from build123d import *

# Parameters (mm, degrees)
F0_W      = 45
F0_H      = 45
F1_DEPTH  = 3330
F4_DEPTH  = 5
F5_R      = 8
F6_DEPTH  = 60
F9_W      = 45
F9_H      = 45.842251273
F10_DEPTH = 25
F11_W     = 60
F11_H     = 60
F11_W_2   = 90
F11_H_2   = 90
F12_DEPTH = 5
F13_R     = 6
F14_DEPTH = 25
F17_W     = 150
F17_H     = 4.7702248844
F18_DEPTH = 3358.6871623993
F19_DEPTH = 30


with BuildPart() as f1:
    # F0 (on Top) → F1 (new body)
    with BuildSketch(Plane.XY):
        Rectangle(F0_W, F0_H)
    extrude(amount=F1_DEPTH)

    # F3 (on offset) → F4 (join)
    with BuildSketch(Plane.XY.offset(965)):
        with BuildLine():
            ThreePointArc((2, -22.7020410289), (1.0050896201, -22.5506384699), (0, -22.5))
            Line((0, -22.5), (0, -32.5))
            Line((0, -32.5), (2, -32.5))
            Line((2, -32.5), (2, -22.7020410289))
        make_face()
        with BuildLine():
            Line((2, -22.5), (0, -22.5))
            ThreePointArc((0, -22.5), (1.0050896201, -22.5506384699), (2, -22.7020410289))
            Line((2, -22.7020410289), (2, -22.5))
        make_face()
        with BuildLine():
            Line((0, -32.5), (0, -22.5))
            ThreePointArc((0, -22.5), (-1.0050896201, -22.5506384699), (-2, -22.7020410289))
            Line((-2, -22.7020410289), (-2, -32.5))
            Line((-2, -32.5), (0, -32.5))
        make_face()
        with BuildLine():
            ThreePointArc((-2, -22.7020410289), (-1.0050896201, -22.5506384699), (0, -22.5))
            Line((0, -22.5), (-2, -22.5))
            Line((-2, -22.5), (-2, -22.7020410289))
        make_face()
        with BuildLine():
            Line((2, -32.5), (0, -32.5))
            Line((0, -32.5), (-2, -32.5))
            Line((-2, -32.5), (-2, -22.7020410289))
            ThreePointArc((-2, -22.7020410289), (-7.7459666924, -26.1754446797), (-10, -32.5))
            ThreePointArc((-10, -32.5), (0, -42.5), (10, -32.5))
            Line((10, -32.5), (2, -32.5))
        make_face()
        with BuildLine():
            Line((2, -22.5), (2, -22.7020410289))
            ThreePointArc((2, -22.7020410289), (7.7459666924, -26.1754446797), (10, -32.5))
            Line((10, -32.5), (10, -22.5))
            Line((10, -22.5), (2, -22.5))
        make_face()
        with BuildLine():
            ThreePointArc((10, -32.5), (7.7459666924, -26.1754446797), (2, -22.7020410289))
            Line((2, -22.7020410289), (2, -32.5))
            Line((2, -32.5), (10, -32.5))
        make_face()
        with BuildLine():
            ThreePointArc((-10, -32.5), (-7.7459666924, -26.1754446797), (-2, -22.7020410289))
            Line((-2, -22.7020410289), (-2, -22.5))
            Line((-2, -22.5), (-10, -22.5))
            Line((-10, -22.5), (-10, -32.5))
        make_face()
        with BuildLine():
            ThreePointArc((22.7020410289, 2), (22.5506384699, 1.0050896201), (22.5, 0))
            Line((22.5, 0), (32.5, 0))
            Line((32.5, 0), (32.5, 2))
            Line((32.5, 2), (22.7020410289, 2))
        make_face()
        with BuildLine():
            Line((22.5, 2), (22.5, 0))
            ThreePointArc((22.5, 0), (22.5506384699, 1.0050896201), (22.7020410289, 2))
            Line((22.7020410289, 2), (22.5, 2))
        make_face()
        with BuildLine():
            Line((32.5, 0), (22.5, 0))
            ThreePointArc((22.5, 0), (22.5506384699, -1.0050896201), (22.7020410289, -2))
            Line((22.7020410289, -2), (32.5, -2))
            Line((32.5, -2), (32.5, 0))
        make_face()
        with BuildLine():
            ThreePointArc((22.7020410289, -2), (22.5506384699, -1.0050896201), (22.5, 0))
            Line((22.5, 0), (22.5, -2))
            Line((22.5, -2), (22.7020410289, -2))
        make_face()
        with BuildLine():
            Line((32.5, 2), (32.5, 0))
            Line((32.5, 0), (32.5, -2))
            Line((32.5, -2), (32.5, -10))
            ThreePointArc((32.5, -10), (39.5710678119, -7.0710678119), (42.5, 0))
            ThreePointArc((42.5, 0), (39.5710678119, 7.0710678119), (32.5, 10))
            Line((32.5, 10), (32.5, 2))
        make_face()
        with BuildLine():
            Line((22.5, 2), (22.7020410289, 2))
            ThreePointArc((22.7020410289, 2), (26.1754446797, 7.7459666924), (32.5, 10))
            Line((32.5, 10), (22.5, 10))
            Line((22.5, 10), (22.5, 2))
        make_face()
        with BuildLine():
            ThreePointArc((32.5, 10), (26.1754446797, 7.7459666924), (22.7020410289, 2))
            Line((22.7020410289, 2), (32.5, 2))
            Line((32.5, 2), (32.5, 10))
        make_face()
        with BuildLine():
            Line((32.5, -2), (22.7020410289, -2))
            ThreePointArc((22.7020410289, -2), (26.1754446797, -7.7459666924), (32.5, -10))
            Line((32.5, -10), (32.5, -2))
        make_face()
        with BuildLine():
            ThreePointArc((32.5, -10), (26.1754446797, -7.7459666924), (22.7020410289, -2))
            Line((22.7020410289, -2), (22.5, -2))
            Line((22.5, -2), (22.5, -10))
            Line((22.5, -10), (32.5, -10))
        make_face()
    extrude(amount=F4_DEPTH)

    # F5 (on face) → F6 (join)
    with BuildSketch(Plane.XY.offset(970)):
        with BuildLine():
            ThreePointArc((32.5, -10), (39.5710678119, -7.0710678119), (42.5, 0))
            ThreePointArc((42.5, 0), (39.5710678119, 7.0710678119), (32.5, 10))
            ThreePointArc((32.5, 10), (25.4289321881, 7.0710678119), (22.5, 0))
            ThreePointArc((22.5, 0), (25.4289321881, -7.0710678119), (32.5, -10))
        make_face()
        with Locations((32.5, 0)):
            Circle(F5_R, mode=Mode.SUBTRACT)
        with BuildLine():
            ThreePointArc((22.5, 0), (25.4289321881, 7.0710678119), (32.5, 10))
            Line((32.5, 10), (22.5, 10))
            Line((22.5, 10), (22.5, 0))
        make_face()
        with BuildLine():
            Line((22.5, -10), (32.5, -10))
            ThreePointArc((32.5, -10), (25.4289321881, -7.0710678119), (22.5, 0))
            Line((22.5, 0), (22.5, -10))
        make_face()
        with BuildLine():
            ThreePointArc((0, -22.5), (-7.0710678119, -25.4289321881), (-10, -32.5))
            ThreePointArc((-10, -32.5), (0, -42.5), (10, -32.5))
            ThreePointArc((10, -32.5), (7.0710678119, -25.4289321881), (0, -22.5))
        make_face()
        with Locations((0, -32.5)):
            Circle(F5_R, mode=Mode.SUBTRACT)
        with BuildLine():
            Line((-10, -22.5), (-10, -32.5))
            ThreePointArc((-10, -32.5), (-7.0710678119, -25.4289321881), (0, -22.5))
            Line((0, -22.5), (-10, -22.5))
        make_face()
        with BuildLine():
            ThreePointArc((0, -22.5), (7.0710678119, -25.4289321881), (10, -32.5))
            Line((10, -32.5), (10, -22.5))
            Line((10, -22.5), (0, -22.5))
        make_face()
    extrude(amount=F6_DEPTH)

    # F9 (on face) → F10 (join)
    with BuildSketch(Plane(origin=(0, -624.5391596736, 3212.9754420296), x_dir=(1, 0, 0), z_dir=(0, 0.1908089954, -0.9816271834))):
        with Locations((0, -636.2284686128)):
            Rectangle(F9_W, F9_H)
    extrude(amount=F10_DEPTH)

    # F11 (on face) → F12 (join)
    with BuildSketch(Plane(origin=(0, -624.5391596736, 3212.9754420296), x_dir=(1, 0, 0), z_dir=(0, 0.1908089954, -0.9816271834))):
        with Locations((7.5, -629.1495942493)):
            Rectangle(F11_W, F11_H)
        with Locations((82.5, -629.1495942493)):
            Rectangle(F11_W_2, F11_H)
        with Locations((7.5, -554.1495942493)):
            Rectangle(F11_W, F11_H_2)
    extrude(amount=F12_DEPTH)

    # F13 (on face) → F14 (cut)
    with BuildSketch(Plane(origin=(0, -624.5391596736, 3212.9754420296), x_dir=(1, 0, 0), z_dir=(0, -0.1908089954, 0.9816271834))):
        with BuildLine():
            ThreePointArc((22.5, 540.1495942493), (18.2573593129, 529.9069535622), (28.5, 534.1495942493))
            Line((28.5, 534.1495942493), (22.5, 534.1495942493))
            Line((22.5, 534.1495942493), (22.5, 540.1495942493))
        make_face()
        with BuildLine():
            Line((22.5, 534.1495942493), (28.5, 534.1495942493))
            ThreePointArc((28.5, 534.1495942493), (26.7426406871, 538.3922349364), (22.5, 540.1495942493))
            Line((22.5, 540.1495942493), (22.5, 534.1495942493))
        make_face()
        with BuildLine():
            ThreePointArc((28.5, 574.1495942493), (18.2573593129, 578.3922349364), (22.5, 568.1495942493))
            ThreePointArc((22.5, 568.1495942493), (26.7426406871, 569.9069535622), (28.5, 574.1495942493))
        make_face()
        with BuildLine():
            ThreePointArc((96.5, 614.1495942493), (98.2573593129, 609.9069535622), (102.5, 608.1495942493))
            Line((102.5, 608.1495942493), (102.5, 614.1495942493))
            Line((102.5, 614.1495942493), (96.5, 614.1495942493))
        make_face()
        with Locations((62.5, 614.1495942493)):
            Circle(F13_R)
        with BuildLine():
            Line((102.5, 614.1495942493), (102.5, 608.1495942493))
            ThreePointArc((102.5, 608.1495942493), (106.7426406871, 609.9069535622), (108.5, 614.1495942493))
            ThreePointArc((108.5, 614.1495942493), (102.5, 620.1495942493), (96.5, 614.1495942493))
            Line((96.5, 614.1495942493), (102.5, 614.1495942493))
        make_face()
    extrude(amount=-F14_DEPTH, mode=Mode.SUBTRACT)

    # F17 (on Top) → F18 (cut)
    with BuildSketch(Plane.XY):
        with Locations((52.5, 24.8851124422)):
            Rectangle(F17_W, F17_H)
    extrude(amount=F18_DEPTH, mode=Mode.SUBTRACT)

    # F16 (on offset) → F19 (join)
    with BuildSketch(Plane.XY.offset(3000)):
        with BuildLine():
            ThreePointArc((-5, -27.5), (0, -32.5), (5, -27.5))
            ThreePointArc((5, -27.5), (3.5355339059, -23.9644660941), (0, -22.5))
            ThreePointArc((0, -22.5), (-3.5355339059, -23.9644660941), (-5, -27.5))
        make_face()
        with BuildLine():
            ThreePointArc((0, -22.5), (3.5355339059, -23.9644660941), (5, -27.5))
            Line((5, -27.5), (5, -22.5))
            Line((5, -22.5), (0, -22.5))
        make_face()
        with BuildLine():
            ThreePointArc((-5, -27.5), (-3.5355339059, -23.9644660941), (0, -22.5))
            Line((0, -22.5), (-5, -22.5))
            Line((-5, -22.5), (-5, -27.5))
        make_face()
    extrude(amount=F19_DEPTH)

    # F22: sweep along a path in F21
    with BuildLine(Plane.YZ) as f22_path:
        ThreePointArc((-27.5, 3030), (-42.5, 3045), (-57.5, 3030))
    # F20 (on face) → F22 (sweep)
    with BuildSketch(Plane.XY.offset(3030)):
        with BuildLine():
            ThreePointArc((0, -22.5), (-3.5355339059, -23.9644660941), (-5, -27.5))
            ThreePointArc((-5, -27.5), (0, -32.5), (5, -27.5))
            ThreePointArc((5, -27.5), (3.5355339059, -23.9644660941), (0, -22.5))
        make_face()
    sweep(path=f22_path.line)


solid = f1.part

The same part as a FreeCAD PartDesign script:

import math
import FreeCAD as App
import Part
import Sketcher
from FreeCAD import Vector
Q = App.Units.Quantity

doc = App.newDocument("Part")
body = doc.addObject("PartDesign::Body", "Body")

sketch1 = doc.addObject("Sketcher::SketchObject", "Sketch")
body.addObject(sketch1)
sketch1.AttachmentSupport = (doc.XY_Plane, [""])
sketch1.MapMode = "FlatFace"
sketch1.addGeometry([
    Part.LineSegment(Vector(-22.5, 22.5, 0), Vector(-22.5, -22.5, 0)),
    Part.LineSegment(Vector(-22.5, -22.5, 0), Vector(22.5, -22.5, 0)),
    Part.LineSegment(Vector(22.5, -22.5, 0), Vector(22.5, 22.5, 0)),
    Part.LineSegment(Vector(22.5, 22.5, 0), Vector(-22.5, 22.5, 0)),
], False)
sketch1.addConstraint([
    Sketcher.Constraint("Coincident", 0, 2, 1, 1),
    Sketcher.Constraint("Coincident", 1, 2, 2, 1),
    Sketcher.Constraint("Coincident", 2, 2, 3, 1),
    Sketcher.Constraint("Coincident", 3, 2, 0, 1),
    Sketcher.Constraint("Vertical", 0),
    Sketcher.Constraint("Horizontal", 1),
    Sketcher.Constraint("Vertical", 2),
    Sketcher.Constraint("Horizontal", 3),
    Sketcher.Constraint("Symmetric", 0, 2, 2, 2, -1, 1),
    Sketcher.Constraint("Equal", 3, 0),
    Sketcher.Constraint("DistanceX", 1, 1, 1, 2, Q("45 mm")),
])
pad1 = doc.addObject("PartDesign::Pad", "Pad")
body.addObject(pad1)
pad1.Profile = sketch1
pad1.Length = 3330

sketch2 = doc.addObject("Sketcher::SketchObject", "Sketch001")
body.addObject(sketch2)
sketch2.AttachmentSupport = (doc.XY_Plane, [""])
sketch2.MapMode = "FlatFace"
sketch2.AttachmentOffset = App.Placement(Vector(0, 0, 965), App.Rotation())
sketch2.addGeometry([
    Part.ArcOfCircle(Part.Circle(Vector(0, -32.5, 0), Vector(0, 0, 1), 10), math.radians(180), math.radians(360)),
    Part.LineSegment(Vector(10, -32.5, 0), Vector(10, -22.5, 0)),
    Part.LineSegment(Vector(10, -22.5, 0), Vector(-10, -22.5, 0)),
    Part.LineSegment(Vector(-10, -22.5, 0), Vector(-10, -32.5, 0)),
    Part.ArcOfCircle(Part.Circle(Vector(32.5, 0, 0), Vector(0, 0, 1), 10), math.radians(0), math.radians(90)),
    Part.LineSegment(Vector(32.5, 10, 0), Vector(22.5, 10, 0)),
    Part.LineSegment(Vector(22.5, 10, 0), Vector(22.5, -10, 0)),
    Part.LineSegment(Vector(22.5, -10, 0), Vector(32.5, -10, 0)),
    Part.ArcOfCircle(Part.Circle(Vector(32.5, 0, 0), Vector(0, 0, 1), 10), math.radians(-90), math.radians(0)),
], False)
sketch2.addConstraint([
    Sketcher.Constraint("Tangent", 0, 2, 1, 1),
    Sketcher.Constraint("Coincident", 1, 2, 2, 1),
    Sketcher.Constraint("Coincident", 2, 2, 3, 1),
    Sketcher.Constraint("Tangent", 3, 2, 0, 1),
    Sketcher.Constraint("Tangent", 4, 2, 5, 1),
    Sketcher.Constraint("Coincident", 5, 2, 6, 1),
    Sketcher.Constraint("Coincident", 6, 2, 7, 1),
    Sketcher.Constraint("Tangent", 7, 2, 8, 1),
    Sketcher.Constraint("Tangent", 8, 2, 4, 1),
    Sketcher.Constraint("Vertical", 1),
    Sketcher.Constraint("Horizontal", 2),
    Sketcher.Constraint("Vertical", 3),
    Sketcher.Constraint("Horizontal", 5),
    Sketcher.Constraint("Vertical", 6),
    Sketcher.Constraint("Horizontal", 7),
    Sketcher.Constraint("Equal", 0, 4),
    Sketcher.Constraint("Equal", 4, 8),
    Sketcher.Constraint("PointOnObject", 0, 3, -2),
    Sketcher.Constraint("PointOnObject", 4, 3, -1),
    Sketcher.Constraint("PointOnObject", 8, 2, -1),
    Sketcher.Constraint("Equal", 7, 1),
    Sketcher.Constraint("Radius", 0, Q("10 mm")),
    Sketcher.Constraint("DistanceX", 5, 2, 5, 1, Q("10 mm")),
    Sketcher.Constraint("DistanceY", 0, 3, -1, 1, Q("32.5 mm")),
    Sketcher.Constraint("DistanceX", -1, 1, 4, 3, Q("32.5 mm")),
])
pad2 = doc.addObject("PartDesign::Pad", "Pad001")
body.addObject(pad2)
pad2.Profile = sketch2
pad2.Length = 5

sketch3 = doc.addObject("Sketcher::SketchObject", "Sketch002")
body.addObject(sketch3)
sketch3.AttachmentSupport = (doc.XY_Plane, [""])
sketch3.MapMode = "FlatFace"
sketch3.AttachmentOffset = App.Placement(Vector(0, 0, 970), App.Rotation())
sketch3.addGeometry([
    Part.ArcOfCircle(Part.Circle(Vector(32.5, 0, 0), Vector(0, 0, 1), 10), math.radians(-90), math.radians(0)),
    Part.ArcOfCircle(Part.Circle(Vector(32.5, 0, 0), Vector(0, 0, 1), 10), math.radians(0), math.radians(90)),
    Part.LineSegment(Vector(32.5, 10, 0), Vector(22.5, 10, 0)),
    Part.LineSegment(Vector(22.5, 10, 0), Vector(22.5, -10, 0)),
    Part.LineSegment(Vector(22.5, -10, 0), Vector(32.5, -10, 0)),
    Part.Circle(Vector(32.5, 0, 0), Vector(0, 0, 1), 8),
    Part.LineSegment(Vector(-10, -22.5, 0), Vector(-10, -32.5, 0)),
    Part.ArcOfCircle(Part.Circle(Vector(0, -32.5, 0), Vector(0, 0, 1), 10), math.radians(180), math.radians(360)),
    Part.LineSegment(Vector(10, -32.5, 0), Vector(10, -22.5, 0)),
    Part.LineSegment(Vector(10, -22.5, 0), Vector(-10, -22.5, 0)),
    Part.Circle(Vector(0, -32.5, 0), Vector(0, 0, 1), 8),
], False)
sketch3.addConstraint([
    Sketcher.Constraint("Tangent", 0, 2, 1, 1),
    Sketcher.Constraint("Tangent", 1, 2, 2, 1),
    Sketcher.Constraint("Coincident", 2, 2, 3, 1),
    Sketcher.Constraint("Coincident", 3, 2, 4, 1),
    Sketcher.Constraint("Tangent", 4, 2, 0, 1),
    Sketcher.Constraint("Tangent", 6, 2, 7, 1),
    Sketcher.Constraint("Tangent", 7, 2, 8, 1),
    Sketcher.Constraint("Coincident", 8, 2, 9, 1),
    Sketcher.Constraint("Coincident", 9, 2, 6, 1),
    Sketcher.Constraint("Horizontal", 2),
    Sketcher.Constraint("Vertical", 3),
    Sketcher.Constraint("Horizontal", 4),
    Sketcher.Constraint("Vertical", 6),
    Sketcher.Constraint("Vertical", 8),
    Sketcher.Constraint("Horizontal", 9),
    Sketcher.Constraint("Coincident", 5, 3, 0, 3),
    Sketcher.Constraint("Coincident", 10, 3, 7, 3),
    Sketcher.Constraint("Equal", 0, 1),
    Sketcher.Constraint("Equal", 1, 7),
    Sketcher.Constraint("Equal", 5, 10),
    Sketcher.Constraint("PointOnObject", 0, 3, -1),
    Sketcher.Constraint("PointOnObject", 7, 3, -2),
    Sketcher.Constraint("PointOnObject", 0, 2, -1),
    Sketcher.Constraint("Equal", 4, 6),
    Sketcher.Constraint("Diameter", 5, Q("16 mm")),
    Sketcher.Constraint("Radius", 0, Q("10 mm")),
    Sketcher.Constraint("DistanceX", 2, 2, 2, 1, Q("10 mm")),
    Sketcher.Constraint("DistanceX", -1, 1, 0, 3, Q("32.5 mm")),
    Sketcher.Constraint("DistanceY", 7, 3, -1, 1, Q("32.5 mm")),
])
pad3 = doc.addObject("PartDesign::Pad", "Pad002")
body.addObject(pad3)
pad3.Profile = sketch3
pad3.Length = 60

sketch4 = doc.addObject("Sketcher::SketchObject", "Sketch003")
body.addObject(sketch4)
sketch4.Placement = App.Placement(Vector(0, -624.53916, 3212.975442), App.Rotation(Vector(1, 0, 0), Vector(0, -0.981627183, -0.190808995), Vector(0, 0.190808995, -0.981627183), "ZXY"))
sketch4.addGeometry([
    Part.LineSegment(Vector(-22.5, -613.307342, 0), Vector(-22.5, -659.149594, 0)),
    Part.LineSegment(Vector(-22.5, -659.149594, 0), Vector(22.5, -659.149594, 0)),
    Part.LineSegment(Vector(22.5, -659.149594, 0), Vector(22.5, -613.307342, 0)),
    Part.LineSegment(Vector(22.5, -613.307342, 0), Vector(-22.5, -613.307342, 0)),
], False)
sketch4.addConstraint([
    Sketcher.Constraint("Coincident", 0, 2, 1, 1),
    Sketcher.Constraint("Coincident", 1, 2, 2, 1),
    Sketcher.Constraint("Coincident", 2, 2, 3, 1),
    Sketcher.Constraint("Coincident", 3, 2, 0, 1),
    Sketcher.Constraint("Vertical", 0),
    Sketcher.Constraint("Horizontal", 1),
    Sketcher.Constraint("Vertical", 2),
    Sketcher.Constraint("Horizontal", 3),
    Sketcher.Constraint("DistanceX", 1, 1, 1, 2, Q("45 mm")),
    Sketcher.Constraint("DistanceX", 0, 2, -1, 1, Q("22.5 mm")),
    Sketcher.Constraint("DistanceY", 0, 2, 0, 1, Q("45.842251 mm")),
    Sketcher.Constraint("DistanceY", 0, 2, -1, 1, Q("659.149594 mm")),
])
pad4 = doc.addObject("PartDesign::Pad", "Pad003")
body.addObject(pad4)
pad4.Profile = sketch4
pad4.Length = 25

sketch5 = doc.addObject("Sketcher::SketchObject", "Sketch004")
body.addObject(sketch5)
sketch5.Placement = App.Placement(Vector(0, -624.53916, 3212.975442), App.Rotation(Vector(1, 0, 0), Vector(0, -0.981627183, -0.190808995), Vector(0, 0.190808995, -0.981627183), "ZXY"))
sketch5.addGeometry([
    Part.LineSegment(Vector(-22.5, -659.149594, 0), Vector(127.5, -659.149594, 0)),
    Part.LineSegment(Vector(127.5, -659.149594, 0), Vector(127.5, -599.149594, 0)),
    Part.LineSegment(Vector(127.5, -599.149594, 0), Vector(37.5, -599.149594, 0)),
    Part.LineSegment(Vector(37.5, -599.149594, 0), Vector(37.5, -509.149594, 0)),
    Part.LineSegment(Vector(37.5, -509.149594, 0), Vector(-22.5, -509.149594, 0)),
    Part.LineSegment(Vector(-22.5, -509.149594, 0), Vector(-22.5, -659.149594, 0)),
], False)
sketch5.addConstraint([
    Sketcher.Constraint("Coincident", 0, 2, 1, 1),
    Sketcher.Constraint("Coincident", 1, 2, 2, 1),
    Sketcher.Constraint("Coincident", 2, 2, 3, 1),
    Sketcher.Constraint("Coincident", 3, 2, 4, 1),
    Sketcher.Constraint("Coincident", 4, 2, 5, 1),
    Sketcher.Constraint("Coincident", 5, 2, 0, 1),
    Sketcher.Constraint("Horizontal", 0),
    Sketcher.Constraint("Vertical", 1),
    Sketcher.Constraint("Horizontal", 2),
    Sketcher.Constraint("Vertical", 3),
    Sketcher.Constraint("Horizontal", 4),
    Sketcher.Constraint("Vertical", 5),
    Sketcher.Constraint("Equal", 4, 1),
    Sketcher.Constraint("Equal", 2, 3),
    Sketcher.Constraint("DistanceX", 0, 1, 0, 2, Q("150 mm")),
    Sketcher.Constraint("DistanceX", 2, 2, 2, 1, Q("90 mm")),
    Sketcher.Constraint("DistanceX", -1, 1, 0, 2, Q("127.5 mm")),
    Sketcher.Constraint("DistanceY", 0, 2, -1, 1, Q("659.149594 mm")),
])
pad5 = doc.addObject("PartDesign::Pad", "Pad004")
body.addObject(pad5)
pad5.Profile = sketch5
pad5.Length = 5

sketch6 = doc.addObject("Sketcher::SketchObject", "Sketch005")
body.addObject(sketch6)
sketch6.Placement = App.Placement(Vector(0, -624.53916, 3212.975442), App.Rotation(Vector(1, 0, 0), Vector(0, 0.981627183, 0.190808995), Vector(0, -0.190808995, 0.981627183), "ZXY"))
sketch6.addGeometry([
    Part.ArcOfCircle(Part.Circle(Vector(22.5, 534.149594, 0), Vector(0, 0, 1), 6), math.radians(90), math.radians(360)),
    Part.ArcOfCircle(Part.Circle(Vector(22.5, 534.149594, 0), Vector(0, 0, 1), 6), math.radians(0), math.radians(90)),
    Part.ArcOfCircle(Part.Circle(Vector(22.5, 574.149594, 0), Vector(0, 0, 1), 6), math.radians(0), math.radians(270)),
    Part.ArcOfCircle(Part.Circle(Vector(22.5, 574.149594, 0), Vector(0, 0, 1), 6), math.radians(-90), math.radians(0)),
    Part.ArcOfCircle(Part.Circle(Vector(102.5, 614.149594, 0), Vector(0, 0, 1), 6), math.radians(180), math.radians(270)),
    Part.ArcOfCircle(Part.Circle(Vector(102.5, 614.149594, 0), Vector(0, 0, 1), 6), math.radians(-90), math.radians(0)),
    Part.ArcOfCircle(Part.Circle(Vector(102.5, 614.149594, 0), Vector(0, 0, 1), 6), math.radians(0), math.radians(180)),
    Part.Circle(Vector(62.5, 614.149594, 0), Vector(0, 0, 1), 6),
], False)
sketch6.addConstraint([
    Sketcher.Constraint("Tangent", 0, 1, 1, 2),
    Sketcher.Constraint("Coincident", 1, 1, 0, 2),
    Sketcher.Constraint("Tangent", 2, 1, 3, 2),
    Sketcher.Constraint("Coincident", 3, 1, 2, 2),
    Sketcher.Constraint("Tangent", 4, 2, 5, 1),
    Sketcher.Constraint("Tangent", 5, 2, 6, 1),
    Sketcher.Constraint("Tangent", 6, 2, 4, 1),
    Sketcher.Constraint("Equal", 1, 2),
    Sketcher.Constraint("Equal", 3, 4),
    Sketcher.Constraint("Equal", 6, 7),
    Sketcher.Constraint("Horizontal", 6, 3, 7, 3),
    Sketcher.Constraint("Horizontal", 0, 3, 1, 1),
    Sketcher.Constraint("Horizontal", 3, 3, 2, 1),
    Sketcher.Constraint("Horizontal", 7, 3, 5, 2),
    Sketcher.Constraint("Horizontal", 5, 2, 6, 2),
    Sketcher.Constraint("Vertical", 1, 3, 2, 3),
    Sketcher.Constraint("Vertical", 3, 3, 0, 1),
    Sketcher.Constraint("Vertical", 0, 1, 3, 1),
    Sketcher.Constraint("Vertical", 6, 3, 4, 2),
    Sketcher.Constraint("Diameter", 7, Q("12 mm")),
    Sketcher.Constraint("DistanceY", 0, 3, 2, 3, Q("40 mm")),
    Sketcher.Constraint("DistanceX", 2, 3, 4, 3, Q("80 mm")),
    Sketcher.Constraint("DistanceY", 2, 3, 4, 3, Q("40 mm")),
    Sketcher.Constraint("DistanceX", 7, 3, 4, 3, Q("40 mm")),
    Sketcher.Constraint("DistanceX", -1, 1, 0, 3, Q("22.5 mm")),
    Sketcher.Constraint("DistanceY", -1, 1, 0, 3, Q("534.149594 mm")),
])
pocket1 = doc.addObject("PartDesign::Pocket", "Pocket")
body.addObject(pocket1)
pocket1.Profile = sketch6
pocket1.Length = 25

sketch7 = doc.addObject("Sketcher::SketchObject", "Sketch006")
body.addObject(sketch7)
sketch7.AttachmentSupport = (doc.XY_Plane, [""])
sketch7.MapMode = "FlatFace"
sketch7.addGeometry([
    Part.LineSegment(Vector(-22.5, 27.270225, 0), Vector(-22.5, 22.5, 0)),
    Part.LineSegment(Vector(-22.5, 22.5, 0), Vector(127.5, 22.5, 0)),
    Part.LineSegment(Vector(127.5, 22.5, 0), Vector(127.5, 27.270225, 0)),
    Part.LineSegment(Vector(127.5, 27.270225, 0), Vector(-22.5, 27.270225, 0)),
], False)
sketch7.addConstraint([
    Sketcher.Constraint("Coincident", 0, 2, 1, 1),
    Sketcher.Constraint("Coincident", 1, 2, 2, 1),
    Sketcher.Constraint("Coincident", 2, 2, 3, 1),
    Sketcher.Constraint("Coincident", 3, 2, 0, 1),
    Sketcher.Constraint("Vertical", 0),
    Sketcher.Constraint("Horizontal", 1),
    Sketcher.Constraint("Vertical", 2),
    Sketcher.Constraint("Horizontal", 3),
    Sketcher.Constraint("DistanceX", 1, 1, 1, 2, Q("150 mm")),
    Sketcher.Constraint("DistanceX", 0, 2, -1, 1, Q("22.5 mm")),
    Sketcher.Constraint("DistanceY", -1, 1, 0, 2, Q("22.5 mm")),
    Sketcher.Constraint("DistanceY", 0, 2, 0, 1, Q("4.770225 mm")),
])
pocket2 = doc.addObject("PartDesign::Pocket", "Pocket001")
body.addObject(pocket2)
pocket2.Profile = sketch7
pocket2.Length = 3358.687162
pocket2.Reversed = True

sketch8 = doc.addObject("Sketcher::SketchObject", "Sketch007")
body.addObject(sketch8)
sketch8.AttachmentSupport = (doc.XY_Plane, [""])
sketch8.MapMode = "FlatFace"
sketch8.AttachmentOffset = App.Placement(Vector(0, 0, 3000), App.Rotation())
sketch8.addGeometry([
    Part.ArcOfCircle(Part.Circle(Vector(0, -27.5, 0), Vector(0, 0, 1), 5), math.radians(180), math.radians(360)),
    Part.LineSegment(Vector(5, -27.5, 0), Vector(5, -22.5, 0)),
    Part.LineSegment(Vector(5, -22.5, 0), Vector(-5, -22.5, 0)),
    Part.LineSegment(Vector(-5, -22.5, 0), Vector(-5, -27.5, 0)),
], False)
sketch8.addConstraint([
    Sketcher.Constraint("Tangent", 0, 2, 1, 1),
    Sketcher.Constraint("Coincident", 1, 2, 2, 1),
    Sketcher.Constraint("Coincident", 2, 2, 3, 1),
    Sketcher.Constraint("Tangent", 3, 2, 0, 1),
    Sketcher.Constraint("Vertical", 1),
    Sketcher.Constraint("Horizontal", 2),
    Sketcher.Constraint("Vertical", 3),
    Sketcher.Constraint("PointOnObject", 0, 3, -2),
    Sketcher.Constraint("Radius", 0, Q("5 mm")),
    Sketcher.Constraint("DistanceY", 1, 1, 1, 2, Q("5 mm")),
    Sketcher.Constraint("DistanceY", 0, 3, -1, 1, Q("27.5 mm")),
])
pad6 = doc.addObject("PartDesign::Pad", "Pad005")
body.addObject(pad6)
pad6.Profile = sketch8
pad6.Length = 30

sketch9 = doc.addObject("Sketcher::SketchObject", "Sketch008")
body.addObject(sketch9)
sketch9.AttachmentSupport = (doc.XY_Plane, [""])
sketch9.MapMode = "FlatFace"
sketch9.AttachmentOffset = App.Placement(Vector(0, 0, 3030), App.Rotation())
sketch9.addGeometry([
    Part.ArcOfCircle(Part.Circle(Vector(0, -27.5, 0), Vector(0, 0, 1), 5), math.radians(90), math.radians(180)),
    Part.ArcOfCircle(Part.Circle(Vector(0, -27.5, 0), Vector(0, 0, 1), 5), math.radians(180), math.radians(360)),
    Part.ArcOfCircle(Part.Circle(Vector(0, -27.5, 0), Vector(0, 0, 1), 5), math.radians(0), math.radians(90)),
], False)
sketch9.addConstraint([
    Sketcher.Constraint("Tangent", 0, 2, 1, 1),
    Sketcher.Constraint("Tangent", 1, 2, 2, 1),
    Sketcher.Constraint("Tangent", 2, 2, 0, 1),
    Sketcher.Constraint("Symmetric", 0, 2, 1, 2, -2),
    Sketcher.Constraint("PointOnObject", 2, 2, -2),
    Sketcher.Constraint("Horizontal", 2, 3, 0, 2),
    Sketcher.Constraint("Radius", 0, Q("5 mm")),
    Sketcher.Constraint("DistanceY", 0, 3, -1, 1, Q("27.5 mm")),
])

sketch10 = doc.addObject("Sketcher::SketchObject", "Sketch009")
body.addObject(sketch10)
sketch10.AttachmentSupport = (doc.YZ_Plane, [""])
sketch10.MapMode = "FlatFace"
sketch10.addGeometry(Part.ArcOfCircle(Part.Circle(Vector(-42.5, 3030, 0), Vector(0, 0, 1), 15), math.radians(0), math.radians(180)), False)
sketch10.addConstraint([
    Sketcher.Constraint("Radius", 0, Q("15 mm")),
    Sketcher.Constraint("DistanceY", -1, 1, 0, 3, Q("3030 mm")),
    Sketcher.Constraint("DistanceY", -1, 1, 0, 1, Q("3030 mm")),
    Sketcher.Constraint("DistanceY", -1, 1, 0, 2, Q("3030 mm")),
    Sketcher.Constraint("DistanceX", 0, 3, -1, 1, Q("42.5 mm")),
])
doc.recompute()

additivepipe = doc.addObject("PartDesign::AdditivePipe", "AdditivePipe")
body.addObject(additivepipe)
additivepipe.Profile = sketch9
additivepipe.Spine = (sketch10, ["Edge1"])

doc.recompute()
